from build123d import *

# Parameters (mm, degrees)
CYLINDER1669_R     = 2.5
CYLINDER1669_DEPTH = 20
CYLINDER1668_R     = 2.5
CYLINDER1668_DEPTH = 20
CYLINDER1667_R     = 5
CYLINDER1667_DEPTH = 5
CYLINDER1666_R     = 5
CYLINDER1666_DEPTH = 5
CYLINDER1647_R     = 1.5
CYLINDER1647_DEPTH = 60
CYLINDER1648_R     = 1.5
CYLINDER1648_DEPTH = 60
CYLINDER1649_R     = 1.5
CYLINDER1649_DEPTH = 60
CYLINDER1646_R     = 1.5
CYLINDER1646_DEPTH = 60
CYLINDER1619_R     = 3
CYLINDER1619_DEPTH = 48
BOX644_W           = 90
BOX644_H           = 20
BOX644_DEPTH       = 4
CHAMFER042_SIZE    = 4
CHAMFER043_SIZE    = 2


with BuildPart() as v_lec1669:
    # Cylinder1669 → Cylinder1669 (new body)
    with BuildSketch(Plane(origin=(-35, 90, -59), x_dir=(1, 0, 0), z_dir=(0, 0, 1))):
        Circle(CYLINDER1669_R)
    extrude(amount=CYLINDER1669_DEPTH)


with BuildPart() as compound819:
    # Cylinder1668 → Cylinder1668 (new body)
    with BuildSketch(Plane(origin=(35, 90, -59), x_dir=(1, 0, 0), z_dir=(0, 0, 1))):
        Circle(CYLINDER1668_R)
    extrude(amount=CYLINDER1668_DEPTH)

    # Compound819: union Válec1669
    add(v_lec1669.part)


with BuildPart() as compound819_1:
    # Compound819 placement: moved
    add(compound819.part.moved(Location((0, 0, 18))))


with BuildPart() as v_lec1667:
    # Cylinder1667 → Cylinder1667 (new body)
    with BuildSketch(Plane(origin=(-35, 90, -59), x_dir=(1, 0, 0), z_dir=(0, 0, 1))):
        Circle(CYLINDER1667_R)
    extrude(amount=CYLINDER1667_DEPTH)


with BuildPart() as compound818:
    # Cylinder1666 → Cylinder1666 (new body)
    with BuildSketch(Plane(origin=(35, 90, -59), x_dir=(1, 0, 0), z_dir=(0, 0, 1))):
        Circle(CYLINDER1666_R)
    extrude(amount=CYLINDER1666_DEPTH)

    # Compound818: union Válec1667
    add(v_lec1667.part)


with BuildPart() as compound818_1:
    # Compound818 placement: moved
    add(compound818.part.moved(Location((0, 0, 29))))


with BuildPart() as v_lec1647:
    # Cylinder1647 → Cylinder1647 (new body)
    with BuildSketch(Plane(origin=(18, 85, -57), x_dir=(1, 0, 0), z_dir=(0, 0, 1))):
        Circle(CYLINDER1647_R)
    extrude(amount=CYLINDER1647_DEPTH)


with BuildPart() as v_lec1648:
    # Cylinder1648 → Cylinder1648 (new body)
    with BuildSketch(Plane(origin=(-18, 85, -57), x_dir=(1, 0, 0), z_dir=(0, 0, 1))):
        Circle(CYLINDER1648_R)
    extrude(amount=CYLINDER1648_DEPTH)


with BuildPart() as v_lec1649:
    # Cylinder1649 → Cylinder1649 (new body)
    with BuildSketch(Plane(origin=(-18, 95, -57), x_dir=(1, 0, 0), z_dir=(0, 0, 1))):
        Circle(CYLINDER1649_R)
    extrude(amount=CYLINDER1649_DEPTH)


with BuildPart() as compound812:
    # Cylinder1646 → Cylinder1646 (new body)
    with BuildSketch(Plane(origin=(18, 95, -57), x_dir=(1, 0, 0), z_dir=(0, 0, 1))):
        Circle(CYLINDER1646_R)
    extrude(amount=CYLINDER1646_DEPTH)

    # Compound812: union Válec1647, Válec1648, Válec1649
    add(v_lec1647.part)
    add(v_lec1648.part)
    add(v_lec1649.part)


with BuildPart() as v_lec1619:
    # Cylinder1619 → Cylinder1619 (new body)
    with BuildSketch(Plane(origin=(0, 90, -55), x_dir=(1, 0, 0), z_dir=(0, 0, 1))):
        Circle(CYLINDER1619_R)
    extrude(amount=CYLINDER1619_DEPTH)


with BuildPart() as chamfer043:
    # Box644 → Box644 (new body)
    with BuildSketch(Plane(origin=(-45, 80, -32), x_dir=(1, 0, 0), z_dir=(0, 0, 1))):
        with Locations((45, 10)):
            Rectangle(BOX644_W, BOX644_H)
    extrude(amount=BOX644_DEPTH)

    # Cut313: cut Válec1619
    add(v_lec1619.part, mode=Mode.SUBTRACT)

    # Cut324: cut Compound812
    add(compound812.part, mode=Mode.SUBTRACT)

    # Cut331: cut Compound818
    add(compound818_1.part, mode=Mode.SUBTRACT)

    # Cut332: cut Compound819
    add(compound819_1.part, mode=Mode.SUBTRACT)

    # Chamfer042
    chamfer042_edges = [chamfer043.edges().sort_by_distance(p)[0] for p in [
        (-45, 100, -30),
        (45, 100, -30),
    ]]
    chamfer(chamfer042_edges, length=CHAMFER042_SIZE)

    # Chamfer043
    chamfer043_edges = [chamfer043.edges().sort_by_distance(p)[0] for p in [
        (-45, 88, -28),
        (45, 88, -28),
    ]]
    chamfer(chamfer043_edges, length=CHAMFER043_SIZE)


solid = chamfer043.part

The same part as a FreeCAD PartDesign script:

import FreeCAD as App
import Part
import Sketcher
from FreeCAD import Vector


def edges_at(feature, points):
    """Names of the edges that pass closest to the given points."""
    edges = feature.Shape.Edges
    near = lambda p: min(range(len(edges)), key=lambda i: edges[i].distToShape(Part.Vertex(*p))[0])
    return sorted({f"Edge{near(p) + 1}" for p in points})


def add_polygon(sketch, points):
    """Adds a closed chain of lines whose ends are joined by coincident constraints."""
    first, n = sketch.GeometryCount, len(points)
    for a, b in zip(points, points[1:] + points[:1]):
        sketch.addGeometry(Part.LineSegment(App.Vector(*a, 0), App.Vector(*b, 0)), False)
    for i in range(n):
        sketch.addConstraint(Sketcher.Constraint("Coincident", first + i, 2, first + (i + 1) % n, 1))

doc = App.newDocument("Part")
body = doc.addObject("PartDesign::Body", "Body")

# Sketch on XY plane
sketch1 = doc.addObject("Sketcher::SketchObject", "Sketch")
body.addObject(sketch1)
sketch1.AttachmentSupport = (doc.XY_Plane, [""])
sketch1.MapMode = "FlatFace"
sketch1.AttachmentOffset = App.Placement(Vector(0, 0, -59), App.Rotation())
sketch1.addGeometry(Part.Circle(Vector(-35, 90, 0), Vector(0, 0, 1), 2.5), False)
sketch1.addConstraint([
    Sketcher.Constraint("Diameter", 0, 5.0),
    Sketcher.Constraint("DistanceX", 0, 3, -1, 1, 35.0),
    Sketcher.Constraint("DistanceY", -1, 1, 0, 3, 90.0),
])
pad1 = doc.addObject("PartDesign::Pad", "Pad")
body.addObject(pad1)
pad1.Profile = sketch1
pad1.Length = 20
body2 = doc.addObject("PartDesign::Body", "Body001")
body2.AllowCompound = True

# Sketch on XY plane
sketch2 = doc.addObject("Sketcher::SketchObject", "Sketch001")
body2.addObject(sketch2)
sketch2.AttachmentSupport = (doc.getObject("XY_Plane001"), [""])
sketch2.MapMode = "FlatFace"
sketch2.AttachmentOffset = App.Placement(Vector(0, 0, -59), App.Rotation())
sketch2.addGeometry(Part.Circle(Vector(35, 90, 0), Vector(0, 0, 1), 2.5), False)
sketch2.addConstraint([
    Sketcher.Constraint("Diameter", 0, 5.0),
    Sketcher.Constraint("DistanceX", -1, 1, 0, 3, 35.0),
    Sketcher.Constraint("DistanceY", -1, 1, 0, 3, 90.0),
])
pad2 = doc.addObject("PartDesign::Pad", "Pad001")
body2.addObject(pad2)
pad2.Profile = sketch2
pad2.Length = 20
doc.recompute()

boolean = doc.addObject("PartDesign::Boolean", "Boolean")
body2.addObject(boolean)
boolean.Type = "Fuse"
boolean.addObjects([body])
body3 = doc.addObject("PartDesign::Body", "Body002")
body3.AllowCompound = True
doc.recompute()

body2.Placement = App.Placement(Vector(0, 0, 18), App.Rotation(Vector(0, 0, 1), 0))
boolean2 = doc.addObject("PartDesign::Boolean", "Boolean001")
body3.addObject(boolean2)
boolean2.Type = "Fuse"
boolean2.addObjects([body2])
body4 = doc.addObject("PartDesign::Body", "Body003")

# Sketch on XY plane
sketch3 = doc.addObject("Sketcher::SketchObject", "Sketch002")
body4.addObject(sketch3)
sketch3.AttachmentSupport = (doc.getObject("XY_Plane003"), [""])
sketch3.MapMode = "FlatFace"
sketch3.AttachmentOffset = App.Placement(Vector(0, 0, -59), App.Rotation())
sketch3.addGeometry(Part.Circle(Vector(-35, 90, 0), Vector(0, 0, 1), 5), False)
sketch3.addConstraint([
    Sketcher.Constraint("Diameter", 0, 10.0),
    Sketcher.Constraint("DistanceX", 0, 3, -1, 1, 35.0),
    Sketcher.Constraint("DistanceY", -1, 1, 0, 3, 90.0),
])
pad3 = doc.addObject("PartDesign::Pad", "Pad002")
body4.addObject(pad3)
pad3.Profile = sketch3
pad3.Length = 5
body5 = doc.addObject("PartDesign::Body", "Body004")
body5.AllowCompound = True

# Sketch on XY plane
sketch4 = doc.addObject("Sketcher::SketchObject", "Sketch003")
body5.addObject(sketch4)
sketch4.AttachmentSupport = (doc.getObject("XY_Plane004"), [""])
sketch4.MapMode = "FlatFace"
sketch4.AttachmentOffset = App.Placement(Vector(0, 0, -59), App.Rotation())
sketch4.addGeometry(Part.Circle(Vector(35, 90, 0), Vector(0, 0, 1), 5), False)
sketch4.addConstraint([
    Sketcher.Constraint("Diameter", 0, 10.0),
    Sketcher.Constraint("DistanceX", -1, 1, 0, 3, 35.0),
    Sketcher.Constraint("DistanceY", -1, 1, 0, 3, 90.0),
])
pad4 = doc.addObject("PartDesign::Pad", "Pad003")
body5.addObject(pad4)
pad4.Profile = sketch4
pad4.Length = 5
doc.recompute()

boolean3 = doc.addObject("PartDesign::Boolean", "Boolean002")
body5.addObject(boolean3)
boolean3.Type = "Fuse"
boolean3.addObjects([body4])
body6 = doc.addObject("PartDesign::Body", "Body005")
body6.AllowCompound = True
doc.recompute()

body5.Placement = App.Placement(Vector(0, 0, 29), App.Rotation(Vector(0, 0, 1), 0))
boolean4 = doc.addObject("PartDesign::Boolean", "Boolean003")
body6.addObject(boolean4)
boolean4.Type = "Fuse"
boolean4.addObjects([body5])
body7 = doc.addObject("PartDesign::Body", "Body006")

# Sketch on XY plane
sketch5 = doc.addObject("Sketcher::SketchObject", "Sketch004")
body7.addObject(sketch5)
sketch5.AttachmentSupport = (doc.getObject("XY_Plane006"), [""])
sketch5.MapMode = "FlatFace"
sketch5.AttachmentOffset = App.Placement(Vector(0, 0, -57), App.Rotation())
sketch5.addGeometry(Part.Circle(Vector(18, 85, 0), Vector(0, 0, 1), 1.5), False)
sketch5.addConstraint([
    Sketcher.Constraint("Diameter", 0, 3.0),
    Sketcher.Constraint("DistanceX", -1, 1, 0, 3, 18.0),
    Sketcher.Constraint("DistanceY", -1, 1, 0, 3, 85.0),
])
pad5 = doc.addObject("PartDesign::Pad", "Pad004")
body7.addObject(pad5)
pad5.Profile = sketch5
pad5.Length = 60
body8 = doc.addObject("PartDesign::Body", "Body007")

# Sketch on XY plane
sketch6 = doc.addObject("Sketcher::SketchObject", "Sketch005")
body8.addObject(sketch6)
sketch6.AttachmentSupport = (doc.getObject("XY_Plane007"), [""])
sketch6.MapMode = "FlatFace"
sketch6.AttachmentOffset = App.Placement(Vector(0, 0, -57), App.Rotation())
sketch6.addGeometry(Part.Circle(Vector(-18, 85, 0), Vector(0, 0, 1), 1.5), False)
sketch6.addConstraint([
    Sketcher.Constraint("Diameter", 0, 3.0),
    Sketcher.Constraint("DistanceX", 0, 3, -1, 1, 18.0),
    Sketcher.Constraint("DistanceY", -1, 1, 0, 3, 85.0),
])
pad6 = doc.addObject("PartDesign::Pad", "Pad005")
body8.addObject(pad6)
pad6.Profile = sketch6
pad6.Length = 60
body9 = doc.addObject("PartDesign::Body", "Body008")

# Sketch on XY plane
sketch7 = doc.addObject("Sketcher::SketchObject", "Sketch006")
body9.addObject(sketch7)
sketch7.AttachmentSupport = (doc.getObject("XY_Plane008"), [""])
sketch7.MapMode = "FlatFace"
sketch7.AttachmentOffset = App.Placement(Vector(0, 0, -57), App.Rotation())
sketch7.addGeometry(Part.Circle(Vector(-18, 95, 0), Vector(0, 0, 1), 1.5), False)
sketch7.addConstraint([
    Sketcher.Constraint("Diameter", 0, 3.0),
    Sketcher.Constraint("DistanceX", 0, 3, -1, 1, 18.0),
    Sketcher.Constraint("DistanceY", -1, 1, 0, 3, 95.0),
])
pad7 = doc.addObject("PartDesign::Pad", "Pad006")
body9.addObject(pad7)
pad7.Profile = sketch7
pad7.Length = 60
body10 = doc.addObject("PartDesign::Body", "Body009")
body10.AllowCompound = True

# Sketch on XY plane
sketch8 = doc.addObject("Sketcher::SketchObject", "Sketch007")
body10.addObject(sketch8)
sketch8.AttachmentSupport = (doc.getObject("XY_Plane009"), [""])
sketch8.MapMode = "FlatFace"
sketch8.AttachmentOffset = App.Placement(Vector(0, 0, -57), App.Rotation())
sketch8.addGeometry(Part.Circle(Vector(18, 95, 0), Vector(0, 0, 1), 1.5), False)
sketch8.addConstraint([
    Sketcher.Constraint("Diameter", 0, 3.0),
    Sketcher.Constraint("DistanceX", -1, 1, 0, 3, 18.0),
    Sketcher.Constraint("DistanceY", -1, 1, 0, 3, 95.0),
])
pad8 = doc.addObject("PartDesign::Pad", "Pad007")
body10.addObject(pad8)
pad8.Profile = sketch8
pad8.Length = 60
doc.recompute()

boolean5 = doc.addObject("PartDesign::Boolean", "Boolean004")
body10.addObject(boolean5)
boolean5.Type = "Fuse"
boolean5.addObjects([body7])
doc.recompute()

boolean6 = doc.addObject("PartDesign::Boolean", "Boolean005")
body10.addObject(boolean6)
boolean6.Type = "Fuse"
boolean6.addObjects([body8])
doc.recompute()

boolean7 = doc.addObject("PartDesign::Boolean", "Boolean006")
body10.addObject(boolean7)
boolean7.Type = "Fuse"
boolean7.addObjects([body9])
body11 = doc.addObject("PartDesign::Body", "Body010")

# Sketch on XY plane
sketch9 = doc.addObject("Sketcher::SketchObject", "Sketch008")
body11.addObject(sketch9)
sketch9.AttachmentSupport = (doc.getObject("XY_Plane010"), [""])
sketch9.MapMode = "FlatFace"
sketch9.AttachmentOffset = App.Placement(Vector(0, 0, -55), App.Rotation())
sketch9.addGeometry(Part.Circle(Vector(0, 90, 0), Vector(0, 0, 1), 3), False)
sketch9.addConstraint([
    Sketcher.Constraint("PointOnObject", 0, 3, -2),
    Sketcher.Constraint("Diameter", 0, 6.0),
    Sketcher.Constraint("DistanceY", -1, 1, 0, 3, 90.0),
])
pad9 = doc.addObject("PartDesign::Pad", "Pad008")
body11.addObject(pad9)
pad9.Profile = sketch9
pad9.Length = 48
body12 = doc.addObject("PartDesign::Body", "Body011")

# Sketch on XY plane
sketch10 = doc.addObject("Sketcher::SketchObject", "Sketch009")
body12.addObject(sketch10)
sketch10.AttachmentSupport = (doc.getObject("XY_Plane011"), [""])
sketch10.MapMode = "FlatFace"
sketch10.AttachmentOffset = App.Placement(Vector(0, 0, -32), App.Rotation())
add_polygon(sketch10, [(-45, 100), (-45, 80), (45, 80), (45, 100)])  # lines 0-3
sketch10.addConstraint([
    Sketcher.Constraint("Vertical", 0),
    Sketcher.Constraint("Horizontal", 1),
    Sketcher.Constraint("Vertical", 2),
    Sketcher.Constraint("Horizontal", 3),
    Sketcher.Constraint("DistanceX", 1, 1, 1, 2, 90.0),
    Sketcher.Constraint("DistanceY", 0, 2, 0, 1, 20.0),
    Sketcher.Constraint("DistanceX", 0, 2, -1, 1, 45.0),
    Sketcher.Constraint("DistanceY", -1, 1, 0, 2, 80.0),
])
pad10 = doc.addObject("PartDesign::Pad", "Pad009")
body12.addObject(pad10)
pad10.Profile = sketch10
pad10.Length = 4
doc.recompute()

boolean8 = doc.addObject("PartDesign::Boolean", "Boolean007")
body12.addObject(boolean8)
boolean8.Type = "Cut"
boolean8.addObjects([body11])
doc.recompute()

boolean9 = doc.addObject("PartDesign::Boolean", "Boolean008")
body12.addObject(boolean9)
boolean9.Type = "Cut"
boolean9.addObjects([body10])
doc.recompute()

boolean10 = doc.addObject("PartDesign::Boolean", "Boolean009")
body12.addObject(boolean10)
boolean10.Type = "Cut"
boolean10.addObjects([body6])
doc.recompute()

boolean11 = doc.addObject("PartDesign::Boolean", "Boolean010")
body12.addObject(boolean11)
boolean11.Type = "Cut"
boolean11.addObjects([body3])
doc.recompute()

chamfer = doc.addObject("PartDesign::Chamfer", "Chamfer")
body12.addObject(chamfer)
chamfer.Base = (boolean11, edges_at(boolean11, [(-45, 100, -30), (45, 100, -30)]))
chamfer.Size = 4
doc.recompute()

chamfer2 = doc.addObject("PartDesign::Chamfer", "Chamfer001")
body12.addObject(chamfer2)
chamfer2.Base = (chamfer, edges_at(chamfer, [(-45, 88, -28), (45, 88, -28)]))
chamfer2.Size = 2

doc.recompute()
